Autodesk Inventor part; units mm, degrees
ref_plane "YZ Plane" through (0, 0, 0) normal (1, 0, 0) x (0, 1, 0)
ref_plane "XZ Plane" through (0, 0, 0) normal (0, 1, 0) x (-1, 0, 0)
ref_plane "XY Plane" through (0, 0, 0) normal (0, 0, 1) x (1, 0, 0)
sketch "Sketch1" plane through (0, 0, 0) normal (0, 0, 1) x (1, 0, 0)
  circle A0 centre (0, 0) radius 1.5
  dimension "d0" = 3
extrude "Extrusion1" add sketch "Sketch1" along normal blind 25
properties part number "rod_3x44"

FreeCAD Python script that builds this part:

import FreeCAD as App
import Part
import Sketcher

V = App.Vector

doc = App.newDocument("Part")
body = doc.addObject("PartDesign::Body", "Body")

# Sketch on XY plane
sketch1 = body.newObject("Sketcher::SketchObject", "Sketch")
sketch1.AttachmentSupport = (doc.getObject("XY_Plane"), [""])
sketch1.MapMode = "FlatFace"
sketch1.addGeometry(Part.Circle(V(0, 0, 0), V(0, 0, 1), 1.5), False)
sketch1.addConstraint(Sketcher.Constraint("Coincident", 0, 3, -1, 1))
sketch1.addConstraint(Sketcher.Constraint("Diameter", 0, 3.0))
pad1 = body.newObject("PartDesign::Pad", "Pad")
pad1.Profile = sketch1
pad1.Length = 25

doc.recompute()
